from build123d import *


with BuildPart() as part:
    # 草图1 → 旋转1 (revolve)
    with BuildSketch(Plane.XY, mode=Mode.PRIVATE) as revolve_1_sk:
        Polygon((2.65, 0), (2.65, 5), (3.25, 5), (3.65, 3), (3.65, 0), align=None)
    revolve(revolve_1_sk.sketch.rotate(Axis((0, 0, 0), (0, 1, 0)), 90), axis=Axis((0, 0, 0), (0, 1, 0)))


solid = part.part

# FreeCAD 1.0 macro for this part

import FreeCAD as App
import Part
import Sketcher
Q = App.Units.Quantity


def add_polygon(sketch, points):
    """Adds a closed chain of lines whose ends are joined by coincident constraints."""
    first, n = sketch.GeometryCount, len(points)
    for a, b in zip(points, points[1:] + points[:1]):
        sketch.addGeometry(Part.LineSegment(App.Vector(*a, 0), App.Vector(*b, 0)), False)
    for i in range(n):
        sketch.addConstraint(Sketcher.Constraint("Coincident", first + i, 2, first + (i + 1) % n, 1))

doc = App.newDocument("Part")
body = doc.addObject("PartDesign::Body", "Body")

# Sketch on XY plane
sketch1 = body.newObject("Sketcher::SketchObject", "Sketch")
sketch1.AttachmentSupport = (doc.getObject("XY_Plane"), [""])
sketch1.MapMode = "FlatFace"
add_polygon(sketch1, [(2.6, 5), (2.6, 0), (3.6, 0), (3.6, 3), (3.2, 5)])  # lines 0-4
sketch1.addConstraint([
    Sketcher.Constraint("Vertical", 0),
    Sketcher.Constraint("Horizontal", 1),
    Sketcher.Constraint("Vertical", 2),
    Sketcher.Constraint("Horizontal", 4),
    Sketcher.Constraint("PointOnObject", 0, 2, -1),
    Sketcher.Constraint("DistanceX", 1, 1, 1, 2, Q("1 mm")),
    Sketcher.Constraint("DistanceY", 0, 2, 0, 1, Q("5 mm")),
    Sketcher.Constraint("DistanceY", 2, 1, 2, 2, Q("3 mm")),
    Sketcher.Constraint("DistanceX", 4, 2, 4, 1, Q("0.6 mm")),
    Sketcher.Constraint("DistanceX", -1, 1, 0, 2, Q("2.65 mm")),
])
revolution = body.newObject("PartDesign::Revolution", "Revolution")
revolution.Profile = sketch1
revolution.ReferenceAxis = (sketch1, ["V_Axis"])
revolution.Angle = 360

doc.recompute()
